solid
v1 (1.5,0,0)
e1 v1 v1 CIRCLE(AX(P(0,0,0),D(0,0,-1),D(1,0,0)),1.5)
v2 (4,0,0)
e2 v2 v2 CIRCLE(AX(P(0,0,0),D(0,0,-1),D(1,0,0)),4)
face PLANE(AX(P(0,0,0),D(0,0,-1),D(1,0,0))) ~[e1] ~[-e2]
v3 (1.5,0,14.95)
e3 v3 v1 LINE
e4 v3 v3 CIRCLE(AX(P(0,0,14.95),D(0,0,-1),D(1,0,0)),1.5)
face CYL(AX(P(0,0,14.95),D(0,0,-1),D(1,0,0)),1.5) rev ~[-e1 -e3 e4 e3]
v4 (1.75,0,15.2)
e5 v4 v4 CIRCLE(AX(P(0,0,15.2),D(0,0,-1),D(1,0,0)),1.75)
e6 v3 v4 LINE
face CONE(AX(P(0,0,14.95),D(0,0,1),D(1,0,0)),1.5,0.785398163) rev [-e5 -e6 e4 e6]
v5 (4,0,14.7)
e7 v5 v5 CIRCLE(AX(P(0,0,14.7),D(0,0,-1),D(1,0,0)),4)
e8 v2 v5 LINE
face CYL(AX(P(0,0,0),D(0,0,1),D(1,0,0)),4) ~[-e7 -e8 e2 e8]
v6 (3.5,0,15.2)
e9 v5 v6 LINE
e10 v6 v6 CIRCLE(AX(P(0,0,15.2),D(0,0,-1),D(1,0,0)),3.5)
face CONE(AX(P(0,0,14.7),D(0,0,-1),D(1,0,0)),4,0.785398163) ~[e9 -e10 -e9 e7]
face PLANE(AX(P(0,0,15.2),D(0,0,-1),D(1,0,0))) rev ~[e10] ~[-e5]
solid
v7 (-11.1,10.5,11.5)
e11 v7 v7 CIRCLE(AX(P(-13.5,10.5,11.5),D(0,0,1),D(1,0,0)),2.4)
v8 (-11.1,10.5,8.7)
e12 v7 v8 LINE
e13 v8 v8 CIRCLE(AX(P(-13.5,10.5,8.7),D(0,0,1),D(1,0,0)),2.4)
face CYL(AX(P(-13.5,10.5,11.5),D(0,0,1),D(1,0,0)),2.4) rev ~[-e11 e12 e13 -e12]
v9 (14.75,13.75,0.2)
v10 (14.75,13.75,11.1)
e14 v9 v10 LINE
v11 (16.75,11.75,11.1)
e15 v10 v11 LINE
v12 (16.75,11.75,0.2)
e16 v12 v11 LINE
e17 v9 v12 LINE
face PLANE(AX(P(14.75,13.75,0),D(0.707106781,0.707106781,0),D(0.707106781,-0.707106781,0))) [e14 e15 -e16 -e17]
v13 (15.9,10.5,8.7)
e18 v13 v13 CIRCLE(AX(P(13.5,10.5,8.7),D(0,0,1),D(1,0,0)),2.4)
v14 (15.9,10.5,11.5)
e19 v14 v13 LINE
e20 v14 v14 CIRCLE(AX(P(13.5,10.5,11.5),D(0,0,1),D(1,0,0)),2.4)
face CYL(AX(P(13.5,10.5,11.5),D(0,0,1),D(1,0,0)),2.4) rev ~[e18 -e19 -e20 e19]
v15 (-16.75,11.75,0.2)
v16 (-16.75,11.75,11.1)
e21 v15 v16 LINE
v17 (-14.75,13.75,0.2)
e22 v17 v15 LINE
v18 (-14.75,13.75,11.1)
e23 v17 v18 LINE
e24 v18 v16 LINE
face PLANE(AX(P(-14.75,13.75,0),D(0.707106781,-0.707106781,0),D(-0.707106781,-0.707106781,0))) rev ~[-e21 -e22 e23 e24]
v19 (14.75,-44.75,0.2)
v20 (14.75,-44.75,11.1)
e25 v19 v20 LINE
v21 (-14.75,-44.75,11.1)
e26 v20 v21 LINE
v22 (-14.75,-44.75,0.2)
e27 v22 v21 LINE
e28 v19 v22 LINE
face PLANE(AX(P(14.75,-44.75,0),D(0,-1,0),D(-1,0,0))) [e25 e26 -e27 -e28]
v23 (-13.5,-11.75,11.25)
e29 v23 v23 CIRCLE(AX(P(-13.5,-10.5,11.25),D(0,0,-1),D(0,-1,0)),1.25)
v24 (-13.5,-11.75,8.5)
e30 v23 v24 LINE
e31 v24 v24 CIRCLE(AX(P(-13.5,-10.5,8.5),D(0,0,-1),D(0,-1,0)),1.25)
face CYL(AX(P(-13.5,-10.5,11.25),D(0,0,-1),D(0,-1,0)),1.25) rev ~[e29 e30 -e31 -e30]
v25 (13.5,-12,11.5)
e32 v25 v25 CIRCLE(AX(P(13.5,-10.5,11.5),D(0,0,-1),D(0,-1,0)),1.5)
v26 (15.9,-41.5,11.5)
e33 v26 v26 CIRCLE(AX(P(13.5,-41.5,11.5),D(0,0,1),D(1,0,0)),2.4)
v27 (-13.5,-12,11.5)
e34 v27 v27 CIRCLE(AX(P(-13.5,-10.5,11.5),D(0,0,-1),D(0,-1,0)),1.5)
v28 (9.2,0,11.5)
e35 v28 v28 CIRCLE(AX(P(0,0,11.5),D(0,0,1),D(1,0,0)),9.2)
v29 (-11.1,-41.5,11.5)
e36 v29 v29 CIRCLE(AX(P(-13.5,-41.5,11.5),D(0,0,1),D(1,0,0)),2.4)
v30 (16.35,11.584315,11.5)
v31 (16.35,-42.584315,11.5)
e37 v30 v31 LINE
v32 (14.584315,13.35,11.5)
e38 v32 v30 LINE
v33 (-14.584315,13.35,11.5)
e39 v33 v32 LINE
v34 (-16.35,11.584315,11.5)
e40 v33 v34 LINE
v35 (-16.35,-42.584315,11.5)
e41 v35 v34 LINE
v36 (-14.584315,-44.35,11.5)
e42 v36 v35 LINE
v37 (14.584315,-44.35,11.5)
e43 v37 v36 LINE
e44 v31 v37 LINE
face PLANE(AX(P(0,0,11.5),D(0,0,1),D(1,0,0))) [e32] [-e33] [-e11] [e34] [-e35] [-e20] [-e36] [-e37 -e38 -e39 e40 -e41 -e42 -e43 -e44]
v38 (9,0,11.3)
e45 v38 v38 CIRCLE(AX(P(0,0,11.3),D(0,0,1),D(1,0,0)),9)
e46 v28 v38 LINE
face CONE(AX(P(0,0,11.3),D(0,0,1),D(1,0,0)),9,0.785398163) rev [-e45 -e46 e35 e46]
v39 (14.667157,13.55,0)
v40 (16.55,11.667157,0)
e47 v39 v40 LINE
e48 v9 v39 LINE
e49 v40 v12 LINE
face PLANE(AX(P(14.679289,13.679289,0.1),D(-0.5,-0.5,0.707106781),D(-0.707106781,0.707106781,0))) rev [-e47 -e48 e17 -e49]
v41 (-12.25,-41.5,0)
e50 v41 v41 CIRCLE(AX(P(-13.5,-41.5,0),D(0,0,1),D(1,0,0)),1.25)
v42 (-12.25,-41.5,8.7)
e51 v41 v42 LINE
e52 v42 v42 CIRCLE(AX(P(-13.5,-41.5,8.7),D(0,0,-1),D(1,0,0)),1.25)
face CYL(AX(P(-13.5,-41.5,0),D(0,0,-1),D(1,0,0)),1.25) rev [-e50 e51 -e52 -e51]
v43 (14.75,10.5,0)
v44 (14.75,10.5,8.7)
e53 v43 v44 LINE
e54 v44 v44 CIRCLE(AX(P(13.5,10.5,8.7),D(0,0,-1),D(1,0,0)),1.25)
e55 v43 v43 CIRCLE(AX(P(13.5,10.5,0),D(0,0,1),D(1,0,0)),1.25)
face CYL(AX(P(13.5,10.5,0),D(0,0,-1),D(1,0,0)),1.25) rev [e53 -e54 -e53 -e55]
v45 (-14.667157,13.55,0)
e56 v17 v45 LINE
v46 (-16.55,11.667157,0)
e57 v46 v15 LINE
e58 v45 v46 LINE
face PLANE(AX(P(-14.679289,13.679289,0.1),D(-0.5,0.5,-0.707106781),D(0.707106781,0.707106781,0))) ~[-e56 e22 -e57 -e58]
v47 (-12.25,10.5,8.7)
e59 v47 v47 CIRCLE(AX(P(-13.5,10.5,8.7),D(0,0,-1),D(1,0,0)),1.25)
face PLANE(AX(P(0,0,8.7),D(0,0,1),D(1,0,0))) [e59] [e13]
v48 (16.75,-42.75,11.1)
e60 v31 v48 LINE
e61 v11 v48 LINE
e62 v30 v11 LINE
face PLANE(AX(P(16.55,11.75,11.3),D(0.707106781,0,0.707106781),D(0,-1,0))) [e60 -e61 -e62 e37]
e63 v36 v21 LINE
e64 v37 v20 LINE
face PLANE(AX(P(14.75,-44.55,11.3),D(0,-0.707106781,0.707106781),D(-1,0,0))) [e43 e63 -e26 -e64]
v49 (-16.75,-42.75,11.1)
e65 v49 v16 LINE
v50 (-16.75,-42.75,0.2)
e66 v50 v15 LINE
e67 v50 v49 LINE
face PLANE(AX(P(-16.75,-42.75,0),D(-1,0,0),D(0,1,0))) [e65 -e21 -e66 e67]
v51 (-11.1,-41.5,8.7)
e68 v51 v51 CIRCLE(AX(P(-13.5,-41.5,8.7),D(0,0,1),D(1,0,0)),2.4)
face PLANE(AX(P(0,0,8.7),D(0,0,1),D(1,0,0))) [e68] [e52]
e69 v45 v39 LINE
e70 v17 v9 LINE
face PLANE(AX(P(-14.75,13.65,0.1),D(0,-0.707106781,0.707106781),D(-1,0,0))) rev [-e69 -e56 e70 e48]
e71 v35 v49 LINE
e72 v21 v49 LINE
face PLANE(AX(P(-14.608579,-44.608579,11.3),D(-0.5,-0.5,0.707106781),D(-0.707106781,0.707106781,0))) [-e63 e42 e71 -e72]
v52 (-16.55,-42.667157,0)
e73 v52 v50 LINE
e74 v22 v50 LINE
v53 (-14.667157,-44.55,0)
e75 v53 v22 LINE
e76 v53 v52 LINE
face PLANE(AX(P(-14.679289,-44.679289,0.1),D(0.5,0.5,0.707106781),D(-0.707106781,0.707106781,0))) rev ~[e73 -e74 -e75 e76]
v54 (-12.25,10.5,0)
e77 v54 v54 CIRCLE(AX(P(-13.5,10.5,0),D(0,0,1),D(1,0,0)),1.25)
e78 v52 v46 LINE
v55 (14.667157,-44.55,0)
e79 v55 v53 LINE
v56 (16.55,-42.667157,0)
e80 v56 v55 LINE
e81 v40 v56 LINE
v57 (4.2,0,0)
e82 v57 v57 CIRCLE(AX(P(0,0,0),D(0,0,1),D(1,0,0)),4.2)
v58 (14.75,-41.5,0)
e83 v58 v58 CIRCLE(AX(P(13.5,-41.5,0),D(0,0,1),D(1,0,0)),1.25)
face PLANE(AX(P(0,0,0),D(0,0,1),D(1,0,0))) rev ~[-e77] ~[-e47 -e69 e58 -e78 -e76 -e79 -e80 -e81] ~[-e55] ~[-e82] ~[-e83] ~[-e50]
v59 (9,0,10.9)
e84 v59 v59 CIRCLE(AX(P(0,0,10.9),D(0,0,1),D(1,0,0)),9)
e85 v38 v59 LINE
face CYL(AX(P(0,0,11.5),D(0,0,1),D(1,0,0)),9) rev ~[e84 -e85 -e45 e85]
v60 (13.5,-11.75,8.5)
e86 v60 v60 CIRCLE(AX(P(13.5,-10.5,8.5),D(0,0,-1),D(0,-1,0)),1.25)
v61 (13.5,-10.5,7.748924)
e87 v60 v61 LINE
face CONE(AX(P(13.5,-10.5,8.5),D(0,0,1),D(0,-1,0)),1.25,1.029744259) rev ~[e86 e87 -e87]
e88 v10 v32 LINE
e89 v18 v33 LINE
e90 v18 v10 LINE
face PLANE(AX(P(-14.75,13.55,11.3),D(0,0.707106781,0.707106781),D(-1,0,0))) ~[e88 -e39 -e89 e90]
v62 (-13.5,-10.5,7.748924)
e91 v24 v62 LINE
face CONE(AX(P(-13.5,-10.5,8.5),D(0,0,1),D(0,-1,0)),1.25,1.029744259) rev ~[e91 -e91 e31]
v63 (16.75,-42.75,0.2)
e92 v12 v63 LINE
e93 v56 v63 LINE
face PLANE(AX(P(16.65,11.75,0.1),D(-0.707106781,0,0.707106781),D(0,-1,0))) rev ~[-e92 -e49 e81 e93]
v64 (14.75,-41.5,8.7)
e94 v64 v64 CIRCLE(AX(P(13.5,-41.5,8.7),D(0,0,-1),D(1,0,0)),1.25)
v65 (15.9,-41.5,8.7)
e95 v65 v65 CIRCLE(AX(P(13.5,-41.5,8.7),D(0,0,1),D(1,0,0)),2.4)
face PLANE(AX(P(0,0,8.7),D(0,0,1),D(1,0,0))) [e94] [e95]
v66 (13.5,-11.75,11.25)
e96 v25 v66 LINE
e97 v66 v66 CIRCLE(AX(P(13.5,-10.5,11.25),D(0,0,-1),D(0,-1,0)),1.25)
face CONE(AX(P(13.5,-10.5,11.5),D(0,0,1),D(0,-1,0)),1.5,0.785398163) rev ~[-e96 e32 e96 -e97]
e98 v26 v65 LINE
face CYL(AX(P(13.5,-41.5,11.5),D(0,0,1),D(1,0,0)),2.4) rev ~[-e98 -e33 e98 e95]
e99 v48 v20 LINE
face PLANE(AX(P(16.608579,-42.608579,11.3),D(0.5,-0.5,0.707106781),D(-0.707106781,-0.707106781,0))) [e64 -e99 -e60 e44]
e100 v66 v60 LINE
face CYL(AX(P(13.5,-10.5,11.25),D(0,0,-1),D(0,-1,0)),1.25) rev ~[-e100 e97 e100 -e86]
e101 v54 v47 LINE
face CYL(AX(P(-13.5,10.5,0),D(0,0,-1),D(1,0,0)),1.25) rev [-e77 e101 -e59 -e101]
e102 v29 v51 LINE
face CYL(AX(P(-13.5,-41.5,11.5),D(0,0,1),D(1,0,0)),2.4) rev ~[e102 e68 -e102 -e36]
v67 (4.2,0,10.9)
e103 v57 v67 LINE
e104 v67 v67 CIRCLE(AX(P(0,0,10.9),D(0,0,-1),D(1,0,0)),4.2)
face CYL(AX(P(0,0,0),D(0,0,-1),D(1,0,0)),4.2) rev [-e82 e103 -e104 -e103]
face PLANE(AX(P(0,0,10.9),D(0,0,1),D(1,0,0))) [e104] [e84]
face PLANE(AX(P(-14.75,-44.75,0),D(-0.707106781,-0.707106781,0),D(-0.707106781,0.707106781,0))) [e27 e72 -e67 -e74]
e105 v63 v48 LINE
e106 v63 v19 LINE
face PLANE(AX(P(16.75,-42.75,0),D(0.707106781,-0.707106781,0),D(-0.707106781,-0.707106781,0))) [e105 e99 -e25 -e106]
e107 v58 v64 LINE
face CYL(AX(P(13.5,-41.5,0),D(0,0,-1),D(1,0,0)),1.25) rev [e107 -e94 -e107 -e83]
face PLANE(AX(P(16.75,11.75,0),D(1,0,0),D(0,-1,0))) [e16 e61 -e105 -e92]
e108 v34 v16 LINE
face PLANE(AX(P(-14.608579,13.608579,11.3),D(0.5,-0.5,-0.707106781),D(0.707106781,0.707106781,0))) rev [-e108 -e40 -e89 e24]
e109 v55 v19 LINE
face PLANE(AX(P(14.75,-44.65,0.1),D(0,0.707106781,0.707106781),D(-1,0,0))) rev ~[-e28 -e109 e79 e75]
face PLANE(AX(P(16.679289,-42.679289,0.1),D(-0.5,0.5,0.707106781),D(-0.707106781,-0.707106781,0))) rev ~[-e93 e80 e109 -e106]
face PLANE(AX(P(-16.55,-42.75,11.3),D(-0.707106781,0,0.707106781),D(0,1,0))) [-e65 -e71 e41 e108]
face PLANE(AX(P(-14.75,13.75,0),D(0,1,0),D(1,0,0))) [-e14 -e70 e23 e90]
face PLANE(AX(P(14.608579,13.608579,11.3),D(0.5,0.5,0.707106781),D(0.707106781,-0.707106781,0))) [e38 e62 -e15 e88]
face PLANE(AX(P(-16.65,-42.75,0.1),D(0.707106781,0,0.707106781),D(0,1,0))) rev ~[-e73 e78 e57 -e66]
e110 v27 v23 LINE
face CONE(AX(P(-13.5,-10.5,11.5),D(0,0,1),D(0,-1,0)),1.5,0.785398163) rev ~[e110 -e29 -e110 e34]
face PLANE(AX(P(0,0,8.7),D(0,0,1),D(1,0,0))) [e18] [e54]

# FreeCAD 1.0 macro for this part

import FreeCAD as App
import Part
import Sketcher


def edges_at(feature, points):
    """Names of the edges that pass closest to the given points."""
    edges = feature.Shape.Edges
    near = lambda p: min(range(len(edges)), key=lambda i: edges[i].distToShape(Part.Vertex(*p))[0])
    return sorted({f"Edge{near(p) + 1}" for p in points})


def add_polygon(sketch, points):
    """Adds a closed chain of lines whose ends are joined by coincident constraints."""
    first, n = sketch.GeometryCount, len(points)
    for a, b in zip(points, points[1:] + points[:1]):
        sketch.addGeometry(Part.LineSegment(App.Vector(*a, 0), App.Vector(*b, 0)), False)
    for i in range(n):
        sketch.addConstraint(Sketcher.Constraint("Coincident", first + i, 2, first + (i + 1) % n, 1))

doc = App.newDocument("Part")
body = doc.addObject("PartDesign::Body", "Body")
body.AllowCompound = True

# Sketch on XY plane
sketch1 = body.newObject("Sketcher::SketchObject", "Sketch")
sketch1.AttachmentSupport = (doc.getObject("XY_Plane"), [""])
sketch1.MapMode = "FlatFace"
add_polygon(sketch1, [(14.75, 13.75), (-14.75, 13.75), (-16.75, 11.75), (-16.75, -42.75), (-14.75, -44.75), (14.75, -44.75), (16.75, -42.75), (16.75, 11.75)])  # lines 0-7
sketch1.addGeometry(Part.Circle(App.Vector(-13.5, -41.5, 0), App.Vector(0, 0, 1), 1.25), False)  # 8
sketch1.addGeometry(Part.Circle(App.Vector(13.5, -41.5, 0), App.Vector(0, 0, 1), 1.25), False)  # 9
sketch1.addGeometry(Part.Circle(App.Vector(-13.5, 10.5, 0), App.Vector(0, 0, 1), 1.25), False)  # 10
sketch1.addGeometry(Part.Circle(App.Vector(0, 0, 0), App.Vector(0, 0, 1), 4.2), False)  # 11
sketch1.addGeometry(Part.Circle(App.Vector(13.5, 10.5, 0), App.Vector(0, 0, 1), 1.25), False)  # 12
sketch1.addConstraint(Sketcher.Constraint("Horizontal", 0))
sketch1.addConstraint(Sketcher.Constraint("Vertical", 2))
sketch1.addConstraint(Sketcher.Constraint("Horizontal", 4))
sketch1.addConstraint(Sketcher.Constraint("Vertical", 6))
sketch1.addConstraint(Sketcher.Constraint("Coincident", 11, 3, -1, 1))
sketch1.addConstraint(Sketcher.Constraint("Equal", 8, 9))
sketch1.addConstraint(Sketcher.Constraint("Equal", 9, 10))
sketch1.addConstraint(Sketcher.Constraint("Equal", 10, 12))
sketch1.addConstraint(Sketcher.Constraint("Symmetric", 8, 3, 9, 3, -2))
sketch1.addConstraint(Sketcher.Constraint("Symmetric", 10, 3, 12, 3, -2))
sketch1.addConstraint(Sketcher.Constraint("Symmetric", 2, 2, 5, 2, -2))
sketch1.addConstraint(Sketcher.Constraint("Perpendicular", 1, 3))
sketch1.addConstraint(Sketcher.Constraint("Perpendicular", 3, 5))
sketch1.addConstraint(Sketcher.Constraint("Perpendicular", 5, 7))
sketch1.addConstraint(Sketcher.Constraint("Horizontal", 1, 2, 6, 2))
sketch1.addConstraint(Sketcher.Constraint("Vertical", 8, 3, 10, 3))
sketch1.addConstraint(Sketcher.Constraint("Vertical", 0, 2, 3, 2))
sketch1.addConstraint(Sketcher.Constraint("Vertical", 4, 2, 7, 2))
sketch1.addConstraint(Sketcher.Constraint("Diameter", 8, 2.5))
sketch1.addConstraint(Sketcher.Constraint("Diameter", 11, 8.4))
sketch1.addConstraint(Sketcher.Constraint("DistanceX", 8, 3, 9, 3, 27.0))
sketch1.addConstraint(Sketcher.Constraint("DistanceY", 8, 3, 10, 3, 52.0))
sketch1.addConstraint(Sketcher.Constraint("DistanceX", 1, 2, 0, 2, 2.0))
sketch1.addConstraint(Sketcher.Constraint("DistanceY", -1, 1, 10, 3, 10.5))
sketch1.addConstraint(Sketcher.Constraint("DistanceX", 2, 2, 5, 2, 33.5))
sketch1.addConstraint(Sketcher.Constraint("DistanceY", -1, 1, 0, 2, 13.75))
sketch1.addConstraint(Sketcher.Constraint("DistanceY", 2, 2, 2, 1, 54.5))
pad1 = body.newObject("PartDesign::Pad", "Pad")
pad1.Profile = sketch1
pad1.Length = 11.5

# Sketch on XY plane
sketch2 = body.newObject("Sketcher::SketchObject", "Sketch001")
sketch2.AttachmentSupport = (doc.getObject("XY_Plane"), [""])
sketch2.MapMode = "FlatFace"
sketch2.AttachmentOffset = App.Placement(App.Vector(0, 0, 11.5), App.Rotation())
sketch2.addGeometry(Part.Circle(App.Vector(13.5, -10.5, 0), App.Vector(0, 0, 1), 1.25), False)
sketch2.addGeometry(Part.Circle(App.Vector(-13.5, -10.5, 0), App.Vector(0, 0, 1), 1.25), False)
sketch2.addConstraint(Sketcher.Constraint("Equal", 0, 1))
sketch2.addConstraint(Sketcher.Constraint("Symmetric", 0, 3, 1, 3, -2))
sketch2.addConstraint(Sketcher.Constraint("Diameter", 0, 2.5))
sketch2.addConstraint(Sketcher.Constraint("DistanceX", 1, 3, 0, 3, 27.0))
sketch2.addConstraint(Sketcher.Constraint("DistanceY", 0, 3, -1, 1, 10.5))
doc.recompute()
hole = body.newObject("PartDesign::Hole", "Hole")
hole.Profile = sketch2
hole.ThreadType = "None"
hole.Diameter = 2.5
hole.DepthType = "Dimension"
hole.Depth = 3
hole.DrillPoint = "Angled"
hole.DrillPointAngle = 118
hole.HoleCutType = "Countersink"
hole.HoleCutDiameter = 3
hole.HoleCutCountersinkAngle = 90

# Sketch on XY plane
sketch3 = body.newObject("Sketcher::SketchObject", "Sketch002")
sketch3.AttachmentSupport = (doc.getObject("XY_Plane"), [""])
sketch3.MapMode = "FlatFace"
sketch3.AttachmentOffset = App.Placement(App.Vector(0, 0, 11.5), App.Rotation())
sketch3.addGeometry(Part.Circle(App.Vector(13.5, 10.5, 0), App.Vector(0, 0, 1), 2.4), False)
sketch3.addGeometry(Part.Circle(App.Vector(13.5, -41.5, 0), App.Vector(0, 0, 1), 2.4), False)
sketch3.addGeometry(Part.Circle(App.Vector(-13.5, -41.5, 0), App.Vector(0, 0, 1), 2.4), False)
sketch3.addGeometry(Part.Circle(App.Vector(-13.5, 10.5, 0), App.Vector(0, 0, 1), 2.4), False)
sketch3.addConstraint(Sketcher.Constraint("Equal", 0, 1))
sketch3.addConstraint(Sketcher.Constraint("Equal", 1, 2))
sketch3.addConstraint(Sketcher.Constraint("Equal", 2, 3))
sketch3.addConstraint(Sketcher.Constraint("Symmetric", 1, 3, 2, 3, -2))
sketch3.addConstraint(Sketcher.Constraint("Symmetric", 0, 3, 3, 3, -2))
sketch3.addConstraint(Sketcher.Constraint("Vertical", 0, 3, 1, 3))
sketch3.addConstraint(Sketcher.Constraint("Diameter", 0, 4.8))
sketch3.addConstraint(Sketcher.Constraint("DistanceY", 1, 3, 0, 3, 52.0))
sketch3.addConstraint(Sketcher.Constraint("DistanceX", 2, 3, 1, 3, 27.0))
sketch3.addConstraint(Sketcher.Constraint("DistanceY", -1, 1, 0, 3, 10.5))
pocket1 = body.newObject("PartDesign::Pocket", "Pocket")
pocket1.Profile = sketch3
pocket1.Length = 2.8

# Sketch on XY plane
sketch4 = body.newObject("Sketcher::SketchObject", "Sketch003")
sketch4.AttachmentSupport = (doc.getObject("XY_Plane"), [""])
sketch4.MapMode = "FlatFace"
sketch4.AttachmentOffset = App.Placement(App.Vector(0, 0, 11.5), App.Rotation())
sketch4.addGeometry(Part.Circle(App.Vector(0, 0, 0), App.Vector(0, 0, 1), 9), False)
sketch4.addConstraint(Sketcher.Constraint("Coincident", 0, 3, -1, 1))
sketch4.addConstraint(Sketcher.Constraint("Diameter", 0, 18.0))
pocket2 = body.newObject("PartDesign::Pocket", "Pocket001")
pocket2.Profile = sketch4
pocket2.Length = 0.6
doc.recompute()

chamfer = body.newObject("PartDesign::Chamfer", "Chamfer")
chamfer.Base = (pocket2, edges_at(pocket2, [
    (-9, 0, 11.5),
    (-15.75, -43.75, 0),
    (-16.75, -15.5, 0),
    (0, -44.75, 0),
    (15.75, -43.75, 0),
    (16.75, -15.5, 0),
    (15.75, 12.75, 0),
    (0, 13.75, 0),
    (-15.75, 12.75, 0),
]))
chamfer.Size = 0.2
doc.recompute()

chamfer2 = body.newObject("PartDesign::Chamfer", "Chamfer001")
chamfer2.Base = (chamfer, edges_at(chamfer, [
    (-16.75, -15.5, 11.5),
    (-15.75, 12.75, 11.5),
    (0, 13.75, 11.5),
    (15.75, 12.75, 11.5),
    (16.75, -15.5, 11.5),
    (15.75, -43.75, 11.5),
    (0, -44.75, 11.5),
    (-15.75, -43.75, 11.5),
]))
chamfer2.Size = 0.4

# Sketch on XZ plane
sketch5 = body.newObject("Sketcher::SketchObject", "Sketch004")
sketch5.AttachmentSupport = (doc.getObject("XZ_Plane"), [""])
sketch5.MapMode = "FlatFace"
add_polygon(sketch5, [(4, 14.7), (4, 0), (1.5, 0), (1.5, 14.95), (1.75, 15.2), (3.5, 15.2)])  # lines 0-5
sketch5.addConstraint(Sketcher.Constraint("Vertical", 0))
sketch5.addConstraint(Sketcher.Constraint("Horizontal", 1))
sketch5.addConstraint(Sketcher.Constraint("Vertical", 2))
sketch5.addConstraint(Sketcher.Constraint("Horizontal", 4))
sketch5.addConstraint(Sketcher.Constraint("PointOnObject", 0, 2, -1))
sketch5.addConstraint(Sketcher.Constraint("Perpendicular", 3, 5))
sketch5.addConstraint(Sketcher.Constraint("DistanceX", 4, 2, 0, 2, 0.5))
sketch5.addConstraint(Sketcher.Constraint("DistanceY", 5, 2, 4, 2, 0.5))
sketch5.addConstraint(Sketcher.Constraint("DistanceX", 2, 2, 3, 2, 0.25))
sketch5.addConstraint(Sketcher.Constraint("DistanceX", 1, 2, 1, 1, 2.5))
sketch5.addConstraint(Sketcher.Constraint("DistanceY", 0, 2, 0, 1, 14.7))
sketch5.addConstraint(Sketcher.Constraint("DistanceX", -1, 1, 0, 2, 4.0))
revolution = body.newObject("PartDesign::Revolution", "Revolution")
revolution.Profile = sketch5
revolution.ReferenceAxis = (sketch5, ["V_Axis"])
revolution.Angle = 360

doc.recompute()
